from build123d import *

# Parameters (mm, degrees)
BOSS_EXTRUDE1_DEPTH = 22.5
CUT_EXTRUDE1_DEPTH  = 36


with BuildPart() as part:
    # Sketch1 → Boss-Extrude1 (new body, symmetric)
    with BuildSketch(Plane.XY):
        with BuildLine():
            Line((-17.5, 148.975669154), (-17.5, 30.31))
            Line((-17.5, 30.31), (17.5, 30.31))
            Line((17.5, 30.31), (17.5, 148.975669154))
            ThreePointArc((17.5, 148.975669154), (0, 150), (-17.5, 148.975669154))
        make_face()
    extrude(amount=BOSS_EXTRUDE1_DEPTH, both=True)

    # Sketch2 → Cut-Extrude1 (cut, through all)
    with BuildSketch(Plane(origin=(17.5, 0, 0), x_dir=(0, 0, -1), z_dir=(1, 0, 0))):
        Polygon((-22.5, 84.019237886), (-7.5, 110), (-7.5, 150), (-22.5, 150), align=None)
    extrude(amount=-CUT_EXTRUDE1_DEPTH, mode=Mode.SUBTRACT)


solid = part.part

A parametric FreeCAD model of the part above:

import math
import FreeCAD as App
import Part
import Sketcher
Q = App.Units.Quantity

doc = App.newDocument("Part")
body = doc.addObject("PartDesign::Body", "Body")

# Sketch on XY plane
sketch1 = body.newObject("Sketcher::SketchObject", "Sketch")
sketch1.AttachmentSupport = (doc.getObject("XY_Plane"), [""])
sketch1.MapMode = "FlatFace"
sketch1.addGeometry([
    Part.LineSegment(App.Vector(-18, 149, 0), App.Vector(-18, 30, 0)),
    Part.LineSegment(App.Vector(-18, 30, 0), App.Vector(18, 30, 0)),
    Part.LineSegment(App.Vector(18, 30, 0), App.Vector(18, 149, 0)),
    Part.ArcOfCircle(Part.Circle(App.Vector(0, 0, 0), App.Vector(0, 0, 1), 150), math.radians(83.3), math.radians(96.7)),
], False)
sketch1.addConstraint([
    Sketcher.Constraint("Coincident", 0, 2, 1, 1),
    Sketcher.Constraint("Coincident", 1, 2, 2, 1),
    Sketcher.Constraint("Coincident", 2, 2, 3, 1),
    Sketcher.Constraint("Coincident", 3, 2, 0, 1),
    Sketcher.Constraint("Vertical", 0),
    Sketcher.Constraint("Horizontal", 1),
    Sketcher.Constraint("Vertical", 2),
    Sketcher.Constraint("Coincident", 3, 3, -1, 1),
    Sketcher.Constraint("Horizontal", 2, 2, 3, 2),
    Sketcher.Constraint("Radius", 3, Q("150 mm")),
    Sketcher.Constraint("DistanceX", 1, 1, 1, 2, Q("35 mm")),
    Sketcher.Constraint("DistanceY", -1, 1, 0, 2, Q("30.31 mm")),
])
pad1 = body.newObject("PartDesign::Pad", "Pad")
pad1.Profile = sketch1
pad1.Length = 45
pad1.Midplane = True

# Sketch on YZ plane
sketch2 = body.newObject("Sketcher::SketchObject", "Sketch001")
sketch2.AttachmentSupport = (doc.getObject("YZ_Plane"), [""])
sketch2.MapMode = "FlatFace"
sketch2.AttachmentOffset = App.Placement(App.Vector(0, 0, 17.5), App.Rotation())
sketch2.addGeometry([
    Part.LineSegment(App.Vector(84, 22, 0), App.Vector(110, 8, 0)),
    Part.LineSegment(App.Vector(110, 8, 0), App.Vector(150, 8, 0)),
    Part.LineSegment(App.Vector(150, 8, 0), App.Vector(150, 22, 0)),
    Part.LineSegment(App.Vector(150, 22, 0), App.Vector(84, 22, 0)),
], False)
sketch2.addConstraint([
    Sketcher.Constraint("Coincident", 0, 2, 1, 1),
    Sketcher.Constraint("Coincident", 1, 2, 2, 1),
    Sketcher.Constraint("Coincident", 2, 2, 3, 1),
    Sketcher.Constraint("Coincident", 3, 2, 0, 1),
    Sketcher.Constraint("Horizontal", 1),
    Sketcher.Constraint("Vertical", 2),
    Sketcher.Constraint("Horizontal", 3),
    Sketcher.Constraint("DistanceX", 1, 1, 1, 2, Q("40 mm")),
    Sketcher.Constraint("DistanceY", 2, 1, 2, 2, Q("15 mm")),
    Sketcher.Constraint("Angle", 0, Q("-30 deg")),
    Sketcher.Constraint("DistanceX", -1, 1, 0, 2, Q("110 mm")),
    Sketcher.Constraint("DistanceY", -1, 1, 0, 2, Q("7.5 mm")),
])
pocket1 = body.newObject("PartDesign::Pocket", "Pocket")
pocket1.Profile = sketch2
pocket1.Type = "ThroughAll"

doc.recompute()
